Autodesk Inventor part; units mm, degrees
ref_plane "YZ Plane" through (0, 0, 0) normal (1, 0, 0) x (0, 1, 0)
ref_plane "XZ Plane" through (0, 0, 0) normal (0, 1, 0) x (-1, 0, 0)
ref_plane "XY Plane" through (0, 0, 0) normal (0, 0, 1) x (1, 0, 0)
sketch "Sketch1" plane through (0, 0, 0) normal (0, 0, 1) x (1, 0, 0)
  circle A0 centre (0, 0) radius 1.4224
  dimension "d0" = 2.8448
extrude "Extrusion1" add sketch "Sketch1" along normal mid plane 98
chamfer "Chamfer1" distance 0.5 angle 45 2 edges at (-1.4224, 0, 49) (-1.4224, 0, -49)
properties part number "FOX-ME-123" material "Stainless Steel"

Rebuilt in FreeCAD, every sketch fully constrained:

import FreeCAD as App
import Part
import Sketcher


def edges_at(feature, points):
    """Names of the edges that pass closest to the given points."""
    edges = feature.Shape.Edges
    near = lambda p: min(range(len(edges)), key=lambda i: edges[i].distToShape(Part.Vertex(*p))[0])
    return sorted({f"Edge{near(p) + 1}" for p in points})

doc = App.newDocument("Part")
body = doc.addObject("PartDesign::Body", "Body")

sketch1 = body.newObject("Sketcher::SketchObject", "Sketch")
sketch1.AttachmentSupport = (doc.getObject("XY_Plane"), [""])
sketch1.MapMode = "FlatFace"
sketch1.addGeometry(Part.Circle(App.Vector(0, 0, 0), App.Vector(0, 0, 1), 1.4), False)
sketch1.addConstraint(Sketcher.Constraint("Coincident", 0, 3, -1, 1))
sketch1.addConstraint(Sketcher.Constraint("Diameter", 0, 2.8448))
pad1 = body.newObject("PartDesign::Pad", "Pad")
pad1.Profile = sketch1
pad1.Length = 98
pad1.Midplane = True
doc.recompute()

chamfer = body.newObject("PartDesign::Chamfer", "Chamfer")
chamfer.Base = (pad1, edges_at(pad1, [(-1.422, 0, 49), (-1.422, 0, -49)]))
chamfer.Size = 0.5

doc.recompute()
